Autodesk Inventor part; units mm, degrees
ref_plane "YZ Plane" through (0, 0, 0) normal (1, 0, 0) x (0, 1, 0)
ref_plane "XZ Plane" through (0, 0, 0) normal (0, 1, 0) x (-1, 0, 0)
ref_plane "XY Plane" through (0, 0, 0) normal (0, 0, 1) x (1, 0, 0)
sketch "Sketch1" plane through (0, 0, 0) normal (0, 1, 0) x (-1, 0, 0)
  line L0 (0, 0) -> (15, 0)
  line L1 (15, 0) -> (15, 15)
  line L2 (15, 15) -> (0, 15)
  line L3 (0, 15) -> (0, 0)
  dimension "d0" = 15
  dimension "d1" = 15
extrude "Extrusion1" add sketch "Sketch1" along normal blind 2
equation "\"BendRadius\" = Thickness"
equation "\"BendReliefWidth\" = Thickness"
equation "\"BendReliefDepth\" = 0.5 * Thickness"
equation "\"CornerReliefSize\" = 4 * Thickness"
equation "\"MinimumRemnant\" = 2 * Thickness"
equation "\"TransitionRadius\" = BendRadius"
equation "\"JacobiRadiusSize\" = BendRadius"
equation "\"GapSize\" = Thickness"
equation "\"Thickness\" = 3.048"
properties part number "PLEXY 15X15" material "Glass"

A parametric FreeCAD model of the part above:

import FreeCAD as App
import Part
import Sketcher

V = App.Vector


def add_polygon(sketch, points):
    """Adds a closed chain of lines whose ends are joined by coincident constraints."""
    first, n = sketch.GeometryCount, len(points)
    for a, b in zip(points, points[1:] + points[:1]):
        sketch.addGeometry(Part.LineSegment(App.Vector(*a, 0), App.Vector(*b, 0)), False)
    for i in range(n):
        sketch.addConstraint(Sketcher.Constraint("Coincident", first + i, 2, first + (i + 1) % n, 1))

doc = App.newDocument("Part")
body = doc.addObject("PartDesign::Body", "Body")

# Sketch on XZ plane
sketch1 = body.newObject("Sketcher::SketchObject", "Sketch")
sketch1.AttachmentSupport = (doc.getObject("XZ_Plane"), [""])
sketch1.MapMode = "FlatFace"
add_polygon(sketch1, [(0, 15), (0, 0), (-15, 0), (-15, 15)])  # lines 0-3
sketch1.addConstraint([
    Sketcher.Constraint("Vertical", 0),
    Sketcher.Constraint("Horizontal", 1),
    Sketcher.Constraint("Vertical", 2),
    Sketcher.Constraint("Horizontal", 3),
    Sketcher.Constraint("Coincident", 0, 2, -1, 1),
    Sketcher.Constraint("Equal", 3, 0),
    Sketcher.Constraint("DistanceX", 1, 2, 1, 1, 15.0),
])
pad1 = body.newObject("PartDesign::Pad", "Pad")
pad1.Profile = sketch1
pad1.Length = 2
pad1.Reversed = True

doc.recompute()
